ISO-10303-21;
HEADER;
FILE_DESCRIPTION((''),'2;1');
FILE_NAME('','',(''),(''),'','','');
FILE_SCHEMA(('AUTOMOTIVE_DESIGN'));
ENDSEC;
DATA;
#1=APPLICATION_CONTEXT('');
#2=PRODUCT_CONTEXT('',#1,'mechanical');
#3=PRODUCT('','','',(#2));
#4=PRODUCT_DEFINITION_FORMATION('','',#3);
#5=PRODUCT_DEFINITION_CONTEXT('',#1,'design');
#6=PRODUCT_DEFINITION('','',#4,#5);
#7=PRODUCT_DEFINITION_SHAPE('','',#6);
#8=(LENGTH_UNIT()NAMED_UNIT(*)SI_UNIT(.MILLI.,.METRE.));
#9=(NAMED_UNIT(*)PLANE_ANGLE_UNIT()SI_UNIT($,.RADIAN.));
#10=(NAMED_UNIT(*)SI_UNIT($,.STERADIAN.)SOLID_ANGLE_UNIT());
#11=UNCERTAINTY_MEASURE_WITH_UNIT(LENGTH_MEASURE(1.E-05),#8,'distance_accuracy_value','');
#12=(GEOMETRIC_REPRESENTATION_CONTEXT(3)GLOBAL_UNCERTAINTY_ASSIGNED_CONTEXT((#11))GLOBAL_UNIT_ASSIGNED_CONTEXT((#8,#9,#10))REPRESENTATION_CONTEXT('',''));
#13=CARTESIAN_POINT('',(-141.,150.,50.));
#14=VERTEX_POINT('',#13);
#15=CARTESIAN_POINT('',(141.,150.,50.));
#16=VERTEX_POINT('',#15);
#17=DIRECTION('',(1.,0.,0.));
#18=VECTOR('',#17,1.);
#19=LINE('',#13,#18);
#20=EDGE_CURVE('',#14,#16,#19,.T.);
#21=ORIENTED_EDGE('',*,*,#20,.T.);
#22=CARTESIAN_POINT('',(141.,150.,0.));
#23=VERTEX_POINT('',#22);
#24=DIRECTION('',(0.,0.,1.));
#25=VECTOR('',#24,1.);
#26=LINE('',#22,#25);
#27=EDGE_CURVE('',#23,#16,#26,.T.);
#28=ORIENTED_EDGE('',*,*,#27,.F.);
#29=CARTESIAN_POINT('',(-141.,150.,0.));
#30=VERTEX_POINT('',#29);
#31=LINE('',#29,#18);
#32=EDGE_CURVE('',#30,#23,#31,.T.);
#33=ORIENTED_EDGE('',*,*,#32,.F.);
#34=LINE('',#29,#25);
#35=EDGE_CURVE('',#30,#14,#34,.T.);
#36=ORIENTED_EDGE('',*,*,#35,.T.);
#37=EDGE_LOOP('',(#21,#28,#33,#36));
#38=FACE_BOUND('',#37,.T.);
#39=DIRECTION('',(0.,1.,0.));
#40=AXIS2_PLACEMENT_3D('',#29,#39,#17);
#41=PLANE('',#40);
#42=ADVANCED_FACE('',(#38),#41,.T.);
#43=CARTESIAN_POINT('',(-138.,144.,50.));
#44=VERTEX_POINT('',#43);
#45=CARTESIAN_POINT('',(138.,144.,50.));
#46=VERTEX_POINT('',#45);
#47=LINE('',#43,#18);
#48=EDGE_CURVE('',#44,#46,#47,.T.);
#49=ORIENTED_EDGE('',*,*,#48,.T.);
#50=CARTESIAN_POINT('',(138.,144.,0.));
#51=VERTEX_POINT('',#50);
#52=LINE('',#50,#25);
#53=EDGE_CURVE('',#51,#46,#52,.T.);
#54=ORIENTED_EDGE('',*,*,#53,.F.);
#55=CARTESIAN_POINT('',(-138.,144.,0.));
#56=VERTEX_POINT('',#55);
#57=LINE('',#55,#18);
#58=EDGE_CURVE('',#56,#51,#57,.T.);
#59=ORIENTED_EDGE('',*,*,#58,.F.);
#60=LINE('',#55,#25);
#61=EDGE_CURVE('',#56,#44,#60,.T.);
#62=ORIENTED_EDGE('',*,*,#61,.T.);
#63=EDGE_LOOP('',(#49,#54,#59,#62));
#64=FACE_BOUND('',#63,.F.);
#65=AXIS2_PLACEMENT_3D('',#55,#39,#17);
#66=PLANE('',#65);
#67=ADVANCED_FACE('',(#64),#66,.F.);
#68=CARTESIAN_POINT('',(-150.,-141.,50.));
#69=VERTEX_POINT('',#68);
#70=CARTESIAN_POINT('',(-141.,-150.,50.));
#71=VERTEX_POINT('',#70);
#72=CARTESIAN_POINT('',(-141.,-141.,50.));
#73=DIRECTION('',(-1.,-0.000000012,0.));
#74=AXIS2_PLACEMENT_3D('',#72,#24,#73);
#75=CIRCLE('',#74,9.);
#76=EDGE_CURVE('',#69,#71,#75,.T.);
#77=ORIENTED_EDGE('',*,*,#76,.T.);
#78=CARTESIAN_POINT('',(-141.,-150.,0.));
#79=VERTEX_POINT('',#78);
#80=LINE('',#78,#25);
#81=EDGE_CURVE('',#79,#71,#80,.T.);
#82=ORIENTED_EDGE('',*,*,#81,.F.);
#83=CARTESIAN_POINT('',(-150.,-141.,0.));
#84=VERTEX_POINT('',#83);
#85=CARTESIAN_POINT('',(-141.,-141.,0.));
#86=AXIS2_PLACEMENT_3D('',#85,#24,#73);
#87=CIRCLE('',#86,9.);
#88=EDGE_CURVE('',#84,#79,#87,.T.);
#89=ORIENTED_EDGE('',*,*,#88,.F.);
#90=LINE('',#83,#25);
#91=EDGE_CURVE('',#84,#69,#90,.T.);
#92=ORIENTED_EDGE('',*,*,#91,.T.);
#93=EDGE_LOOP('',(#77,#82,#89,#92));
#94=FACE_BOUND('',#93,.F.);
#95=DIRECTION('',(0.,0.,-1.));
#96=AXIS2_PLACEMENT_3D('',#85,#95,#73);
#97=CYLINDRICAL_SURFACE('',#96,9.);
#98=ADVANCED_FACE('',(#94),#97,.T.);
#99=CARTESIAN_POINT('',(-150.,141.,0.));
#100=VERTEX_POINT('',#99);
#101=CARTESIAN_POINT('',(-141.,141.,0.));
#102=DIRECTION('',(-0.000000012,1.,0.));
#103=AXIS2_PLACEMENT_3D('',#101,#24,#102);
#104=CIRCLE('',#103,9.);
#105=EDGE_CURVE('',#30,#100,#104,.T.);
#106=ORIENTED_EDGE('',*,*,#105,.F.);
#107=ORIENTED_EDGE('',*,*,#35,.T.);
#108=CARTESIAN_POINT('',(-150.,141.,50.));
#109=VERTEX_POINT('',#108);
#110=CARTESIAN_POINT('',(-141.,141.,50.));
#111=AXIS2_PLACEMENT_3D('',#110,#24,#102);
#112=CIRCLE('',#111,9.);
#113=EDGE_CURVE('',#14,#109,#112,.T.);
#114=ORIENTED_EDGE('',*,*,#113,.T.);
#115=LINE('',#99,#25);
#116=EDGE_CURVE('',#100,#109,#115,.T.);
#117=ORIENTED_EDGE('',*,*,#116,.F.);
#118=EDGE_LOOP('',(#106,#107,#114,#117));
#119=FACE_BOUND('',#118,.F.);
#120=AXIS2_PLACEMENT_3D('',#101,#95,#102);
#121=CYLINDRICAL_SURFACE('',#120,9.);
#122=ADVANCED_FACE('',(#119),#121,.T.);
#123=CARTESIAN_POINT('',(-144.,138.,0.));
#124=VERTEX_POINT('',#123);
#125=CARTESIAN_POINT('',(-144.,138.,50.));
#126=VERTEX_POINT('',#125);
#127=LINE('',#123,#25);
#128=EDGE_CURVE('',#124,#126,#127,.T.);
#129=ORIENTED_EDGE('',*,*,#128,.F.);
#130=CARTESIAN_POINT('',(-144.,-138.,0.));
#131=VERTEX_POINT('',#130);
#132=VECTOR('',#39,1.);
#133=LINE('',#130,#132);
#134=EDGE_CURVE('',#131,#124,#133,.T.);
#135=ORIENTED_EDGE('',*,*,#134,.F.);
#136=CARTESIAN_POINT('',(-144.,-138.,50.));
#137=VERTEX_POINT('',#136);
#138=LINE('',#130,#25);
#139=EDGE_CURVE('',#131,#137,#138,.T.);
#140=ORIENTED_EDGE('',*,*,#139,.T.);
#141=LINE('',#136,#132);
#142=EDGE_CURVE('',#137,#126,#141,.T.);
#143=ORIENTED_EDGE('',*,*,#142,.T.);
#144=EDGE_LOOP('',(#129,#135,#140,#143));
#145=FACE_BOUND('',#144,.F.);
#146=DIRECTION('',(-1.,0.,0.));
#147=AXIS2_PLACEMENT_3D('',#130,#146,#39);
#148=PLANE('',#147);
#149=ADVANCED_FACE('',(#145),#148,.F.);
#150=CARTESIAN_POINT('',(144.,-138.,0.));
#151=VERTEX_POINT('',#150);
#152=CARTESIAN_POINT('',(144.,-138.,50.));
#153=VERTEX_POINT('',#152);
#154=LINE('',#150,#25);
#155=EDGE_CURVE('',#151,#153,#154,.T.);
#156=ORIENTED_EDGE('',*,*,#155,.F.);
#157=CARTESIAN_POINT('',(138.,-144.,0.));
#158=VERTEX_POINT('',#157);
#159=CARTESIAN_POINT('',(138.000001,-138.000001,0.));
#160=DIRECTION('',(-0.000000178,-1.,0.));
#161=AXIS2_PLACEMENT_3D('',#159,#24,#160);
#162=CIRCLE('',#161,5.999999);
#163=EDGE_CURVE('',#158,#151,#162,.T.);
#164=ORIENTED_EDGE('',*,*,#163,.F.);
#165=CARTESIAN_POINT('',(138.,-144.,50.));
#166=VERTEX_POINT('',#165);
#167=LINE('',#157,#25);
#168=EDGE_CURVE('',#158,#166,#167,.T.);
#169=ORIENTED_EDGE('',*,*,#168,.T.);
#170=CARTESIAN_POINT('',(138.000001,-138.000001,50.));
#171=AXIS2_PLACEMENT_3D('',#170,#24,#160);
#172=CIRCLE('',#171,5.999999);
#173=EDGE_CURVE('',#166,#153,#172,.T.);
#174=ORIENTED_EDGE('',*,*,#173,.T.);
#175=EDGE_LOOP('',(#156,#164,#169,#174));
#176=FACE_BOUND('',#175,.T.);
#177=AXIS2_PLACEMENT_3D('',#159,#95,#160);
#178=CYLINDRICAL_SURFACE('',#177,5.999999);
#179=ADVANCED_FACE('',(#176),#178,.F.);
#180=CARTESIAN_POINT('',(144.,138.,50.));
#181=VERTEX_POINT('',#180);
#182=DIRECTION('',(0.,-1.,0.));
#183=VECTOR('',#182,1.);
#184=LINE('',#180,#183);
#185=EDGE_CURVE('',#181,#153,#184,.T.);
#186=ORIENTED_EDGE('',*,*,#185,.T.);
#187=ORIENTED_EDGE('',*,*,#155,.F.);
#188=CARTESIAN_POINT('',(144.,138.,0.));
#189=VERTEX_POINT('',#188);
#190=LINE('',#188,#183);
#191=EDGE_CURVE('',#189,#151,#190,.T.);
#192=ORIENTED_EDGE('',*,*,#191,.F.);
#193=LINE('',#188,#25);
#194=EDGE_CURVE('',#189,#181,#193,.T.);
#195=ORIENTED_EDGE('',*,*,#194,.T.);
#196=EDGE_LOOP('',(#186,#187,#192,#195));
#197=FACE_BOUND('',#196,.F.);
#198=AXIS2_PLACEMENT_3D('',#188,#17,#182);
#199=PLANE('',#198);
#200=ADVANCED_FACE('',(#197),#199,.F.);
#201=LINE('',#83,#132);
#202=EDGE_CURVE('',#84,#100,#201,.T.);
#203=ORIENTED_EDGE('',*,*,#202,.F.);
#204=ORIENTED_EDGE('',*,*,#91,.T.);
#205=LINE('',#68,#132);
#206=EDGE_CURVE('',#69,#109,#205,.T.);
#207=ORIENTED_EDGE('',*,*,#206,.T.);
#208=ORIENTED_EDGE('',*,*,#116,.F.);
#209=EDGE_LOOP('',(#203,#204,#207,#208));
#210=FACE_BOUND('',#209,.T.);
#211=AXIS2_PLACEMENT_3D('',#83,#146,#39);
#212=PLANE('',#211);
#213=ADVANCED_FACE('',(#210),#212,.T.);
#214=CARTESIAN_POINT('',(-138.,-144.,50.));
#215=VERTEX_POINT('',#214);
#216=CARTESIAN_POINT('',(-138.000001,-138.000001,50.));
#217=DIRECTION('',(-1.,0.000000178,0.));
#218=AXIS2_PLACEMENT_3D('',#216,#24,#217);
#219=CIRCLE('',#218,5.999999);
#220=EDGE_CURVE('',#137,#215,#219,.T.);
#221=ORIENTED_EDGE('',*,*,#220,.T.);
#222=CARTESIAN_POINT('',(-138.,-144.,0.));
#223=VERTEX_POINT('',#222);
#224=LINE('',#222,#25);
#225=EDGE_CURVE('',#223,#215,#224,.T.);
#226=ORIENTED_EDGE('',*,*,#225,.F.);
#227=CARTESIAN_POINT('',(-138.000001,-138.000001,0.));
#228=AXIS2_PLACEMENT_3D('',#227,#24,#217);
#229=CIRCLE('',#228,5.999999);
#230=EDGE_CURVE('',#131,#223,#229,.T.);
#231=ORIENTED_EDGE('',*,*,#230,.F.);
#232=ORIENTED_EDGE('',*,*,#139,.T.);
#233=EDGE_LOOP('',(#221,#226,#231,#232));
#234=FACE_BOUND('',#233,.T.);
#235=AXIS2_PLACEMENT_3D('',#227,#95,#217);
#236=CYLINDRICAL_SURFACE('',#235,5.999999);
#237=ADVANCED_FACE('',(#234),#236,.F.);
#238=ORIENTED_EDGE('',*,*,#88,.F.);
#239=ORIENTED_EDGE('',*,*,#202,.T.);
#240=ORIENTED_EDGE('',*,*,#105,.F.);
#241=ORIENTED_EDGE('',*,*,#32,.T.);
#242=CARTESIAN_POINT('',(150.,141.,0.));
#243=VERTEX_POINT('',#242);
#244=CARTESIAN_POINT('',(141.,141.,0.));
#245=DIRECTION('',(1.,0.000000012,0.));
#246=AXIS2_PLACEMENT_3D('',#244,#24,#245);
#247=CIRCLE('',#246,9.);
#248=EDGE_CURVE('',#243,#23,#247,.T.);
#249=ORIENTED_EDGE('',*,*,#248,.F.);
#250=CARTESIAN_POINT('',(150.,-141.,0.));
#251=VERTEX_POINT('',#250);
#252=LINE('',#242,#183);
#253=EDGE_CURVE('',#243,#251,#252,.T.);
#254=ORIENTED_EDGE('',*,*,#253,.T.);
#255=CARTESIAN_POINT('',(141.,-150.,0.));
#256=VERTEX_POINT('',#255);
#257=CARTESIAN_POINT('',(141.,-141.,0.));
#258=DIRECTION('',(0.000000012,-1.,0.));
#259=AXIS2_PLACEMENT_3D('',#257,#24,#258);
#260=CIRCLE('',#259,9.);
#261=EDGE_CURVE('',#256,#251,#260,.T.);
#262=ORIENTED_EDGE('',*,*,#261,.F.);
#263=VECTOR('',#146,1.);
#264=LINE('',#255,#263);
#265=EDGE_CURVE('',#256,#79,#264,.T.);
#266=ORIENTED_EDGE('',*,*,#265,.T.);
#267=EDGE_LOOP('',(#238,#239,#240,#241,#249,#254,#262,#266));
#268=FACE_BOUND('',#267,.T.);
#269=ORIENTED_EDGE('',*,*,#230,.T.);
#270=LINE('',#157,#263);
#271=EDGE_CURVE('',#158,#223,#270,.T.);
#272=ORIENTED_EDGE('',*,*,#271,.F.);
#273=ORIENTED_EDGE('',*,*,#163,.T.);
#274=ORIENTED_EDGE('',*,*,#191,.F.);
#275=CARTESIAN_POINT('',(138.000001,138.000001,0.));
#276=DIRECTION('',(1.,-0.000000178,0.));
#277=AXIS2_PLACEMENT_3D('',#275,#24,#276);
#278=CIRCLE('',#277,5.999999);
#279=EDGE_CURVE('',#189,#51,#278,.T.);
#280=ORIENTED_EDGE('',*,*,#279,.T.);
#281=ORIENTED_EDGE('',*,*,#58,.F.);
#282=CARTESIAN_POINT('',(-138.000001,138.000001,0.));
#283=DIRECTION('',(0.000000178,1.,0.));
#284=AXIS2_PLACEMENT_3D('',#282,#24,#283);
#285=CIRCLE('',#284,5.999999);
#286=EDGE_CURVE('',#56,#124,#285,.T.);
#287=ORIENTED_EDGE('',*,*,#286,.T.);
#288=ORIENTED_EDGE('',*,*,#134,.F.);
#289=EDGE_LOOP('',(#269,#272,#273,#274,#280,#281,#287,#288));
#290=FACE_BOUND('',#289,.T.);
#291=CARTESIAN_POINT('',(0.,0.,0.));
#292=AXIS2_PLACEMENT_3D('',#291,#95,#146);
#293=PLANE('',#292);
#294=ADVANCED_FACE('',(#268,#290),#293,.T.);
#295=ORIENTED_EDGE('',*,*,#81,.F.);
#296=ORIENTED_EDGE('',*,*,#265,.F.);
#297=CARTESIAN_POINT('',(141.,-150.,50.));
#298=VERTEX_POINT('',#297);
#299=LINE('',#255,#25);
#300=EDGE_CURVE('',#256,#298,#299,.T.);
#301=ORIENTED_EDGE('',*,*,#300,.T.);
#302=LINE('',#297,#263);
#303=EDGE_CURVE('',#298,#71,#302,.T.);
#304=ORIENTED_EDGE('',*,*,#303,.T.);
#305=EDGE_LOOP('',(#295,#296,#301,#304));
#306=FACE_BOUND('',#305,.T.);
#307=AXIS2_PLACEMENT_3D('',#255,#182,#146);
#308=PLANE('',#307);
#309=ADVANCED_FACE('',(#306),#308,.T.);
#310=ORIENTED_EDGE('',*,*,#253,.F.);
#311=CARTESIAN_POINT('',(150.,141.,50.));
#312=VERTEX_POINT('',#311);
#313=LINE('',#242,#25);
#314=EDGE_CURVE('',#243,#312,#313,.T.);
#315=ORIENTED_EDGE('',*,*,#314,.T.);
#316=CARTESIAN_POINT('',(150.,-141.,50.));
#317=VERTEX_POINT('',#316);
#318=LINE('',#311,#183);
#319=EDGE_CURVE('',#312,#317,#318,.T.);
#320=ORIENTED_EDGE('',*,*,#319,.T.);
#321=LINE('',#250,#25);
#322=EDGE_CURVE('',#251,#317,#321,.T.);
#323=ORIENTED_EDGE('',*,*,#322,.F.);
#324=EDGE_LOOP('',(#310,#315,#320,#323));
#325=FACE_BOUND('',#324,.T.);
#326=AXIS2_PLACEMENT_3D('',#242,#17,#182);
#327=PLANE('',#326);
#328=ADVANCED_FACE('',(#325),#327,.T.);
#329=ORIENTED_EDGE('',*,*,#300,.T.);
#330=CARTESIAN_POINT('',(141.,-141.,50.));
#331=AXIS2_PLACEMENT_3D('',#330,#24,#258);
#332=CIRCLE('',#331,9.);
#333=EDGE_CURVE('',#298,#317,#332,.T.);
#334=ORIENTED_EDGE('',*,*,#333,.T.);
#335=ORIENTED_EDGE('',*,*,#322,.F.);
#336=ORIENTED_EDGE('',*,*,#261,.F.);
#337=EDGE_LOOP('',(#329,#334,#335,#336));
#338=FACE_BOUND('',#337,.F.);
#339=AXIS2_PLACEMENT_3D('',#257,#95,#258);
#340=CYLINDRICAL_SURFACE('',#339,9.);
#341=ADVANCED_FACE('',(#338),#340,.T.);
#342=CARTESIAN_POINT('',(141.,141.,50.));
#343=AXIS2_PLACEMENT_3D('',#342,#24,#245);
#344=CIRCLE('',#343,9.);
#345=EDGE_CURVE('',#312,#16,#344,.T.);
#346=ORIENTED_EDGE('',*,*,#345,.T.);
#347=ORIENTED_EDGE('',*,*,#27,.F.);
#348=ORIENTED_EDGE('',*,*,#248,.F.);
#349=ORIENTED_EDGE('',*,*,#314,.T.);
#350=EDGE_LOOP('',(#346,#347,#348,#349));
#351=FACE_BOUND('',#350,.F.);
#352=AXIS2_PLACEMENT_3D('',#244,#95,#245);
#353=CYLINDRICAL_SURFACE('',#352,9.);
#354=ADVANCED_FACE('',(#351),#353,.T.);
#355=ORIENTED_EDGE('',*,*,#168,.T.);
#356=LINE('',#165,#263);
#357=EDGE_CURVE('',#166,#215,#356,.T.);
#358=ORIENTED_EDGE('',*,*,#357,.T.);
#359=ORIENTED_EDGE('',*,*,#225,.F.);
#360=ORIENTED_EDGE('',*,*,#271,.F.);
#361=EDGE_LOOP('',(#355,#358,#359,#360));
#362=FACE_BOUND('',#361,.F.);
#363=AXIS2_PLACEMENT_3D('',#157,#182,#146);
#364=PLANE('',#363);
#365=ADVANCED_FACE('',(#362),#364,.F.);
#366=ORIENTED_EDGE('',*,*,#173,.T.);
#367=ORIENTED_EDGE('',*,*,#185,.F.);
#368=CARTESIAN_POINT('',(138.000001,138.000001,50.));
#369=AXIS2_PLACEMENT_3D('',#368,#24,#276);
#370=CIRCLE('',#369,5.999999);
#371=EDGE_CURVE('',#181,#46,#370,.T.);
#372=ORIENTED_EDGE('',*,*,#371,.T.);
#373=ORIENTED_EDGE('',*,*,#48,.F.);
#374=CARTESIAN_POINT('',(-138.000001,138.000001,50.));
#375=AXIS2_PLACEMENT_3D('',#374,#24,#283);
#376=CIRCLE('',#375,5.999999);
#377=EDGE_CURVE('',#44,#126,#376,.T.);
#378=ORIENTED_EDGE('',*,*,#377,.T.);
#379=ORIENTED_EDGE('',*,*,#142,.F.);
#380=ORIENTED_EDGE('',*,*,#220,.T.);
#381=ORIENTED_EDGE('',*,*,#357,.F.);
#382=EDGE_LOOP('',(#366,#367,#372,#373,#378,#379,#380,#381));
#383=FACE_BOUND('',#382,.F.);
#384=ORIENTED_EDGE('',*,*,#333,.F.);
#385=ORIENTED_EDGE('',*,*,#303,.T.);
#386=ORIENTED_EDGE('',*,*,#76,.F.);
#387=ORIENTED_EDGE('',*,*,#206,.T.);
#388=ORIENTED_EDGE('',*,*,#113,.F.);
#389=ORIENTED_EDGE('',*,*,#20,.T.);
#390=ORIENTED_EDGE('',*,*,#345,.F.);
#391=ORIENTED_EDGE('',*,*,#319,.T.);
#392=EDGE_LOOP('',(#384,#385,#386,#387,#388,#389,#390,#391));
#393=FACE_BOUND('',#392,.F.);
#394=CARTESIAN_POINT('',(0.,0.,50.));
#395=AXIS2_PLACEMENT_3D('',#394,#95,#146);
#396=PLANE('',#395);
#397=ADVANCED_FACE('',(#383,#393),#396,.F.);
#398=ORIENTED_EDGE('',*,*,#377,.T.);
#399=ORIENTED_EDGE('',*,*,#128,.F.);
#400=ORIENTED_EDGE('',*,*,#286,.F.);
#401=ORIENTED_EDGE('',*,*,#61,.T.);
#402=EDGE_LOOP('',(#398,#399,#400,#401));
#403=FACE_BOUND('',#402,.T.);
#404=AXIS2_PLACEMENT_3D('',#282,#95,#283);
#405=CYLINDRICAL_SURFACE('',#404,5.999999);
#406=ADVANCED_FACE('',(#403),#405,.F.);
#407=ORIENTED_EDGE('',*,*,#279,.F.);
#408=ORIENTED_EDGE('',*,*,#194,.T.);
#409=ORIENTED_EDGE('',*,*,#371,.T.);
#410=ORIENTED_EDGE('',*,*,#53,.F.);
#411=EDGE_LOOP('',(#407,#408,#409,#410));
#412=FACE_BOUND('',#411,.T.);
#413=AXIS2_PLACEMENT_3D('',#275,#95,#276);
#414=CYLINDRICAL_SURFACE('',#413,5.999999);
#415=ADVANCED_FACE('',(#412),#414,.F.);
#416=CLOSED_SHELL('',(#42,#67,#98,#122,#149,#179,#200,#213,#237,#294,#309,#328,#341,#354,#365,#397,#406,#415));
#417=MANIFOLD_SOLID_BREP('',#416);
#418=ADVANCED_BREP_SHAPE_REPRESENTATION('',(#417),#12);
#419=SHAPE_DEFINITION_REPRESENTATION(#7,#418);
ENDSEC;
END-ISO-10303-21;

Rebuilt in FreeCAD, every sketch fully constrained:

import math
import FreeCAD as App
import Part
import Sketcher

V = App.Vector

doc = App.newDocument("Part")
body = doc.addObject("PartDesign::Body", "Body")

sketch1 = doc.addObject("Sketcher::SketchObject", "Sketch")
body.addObject(sketch1)
sketch1.AttachmentSupport = (doc.XY_Plane, [""])
sketch1.MapMode = "FlatFace"
sketch1.addGeometry(Part.LineSegment(V(141, 150, 0), V(-141, 150, 0)), False)
sketch1.addGeometry(Part.ArcOfCircle(Part.Circle(V(-141, 141, 0), V(0, 0, 1), 9), math.radians(90), math.radians(180)), False)
sketch1.addGeometry(Part.LineSegment(V(-150, 141, 0), V(-150, -141, 0)), False)
sketch1.addGeometry(Part.ArcOfCircle(Part.Circle(V(-141, -141, 0), V(0, 0, 1), 9), math.radians(-180), math.radians(-90)), False)
sketch1.addGeometry(Part.LineSegment(V(-141, -150, 0), V(141, -150, 0)), False)
sketch1.addGeometry(Part.ArcOfCircle(Part.Circle(V(141, -141, 0), V(0, 0, 1), 9), math.radians(-90), math.radians(0)), False)
sketch1.addGeometry(Part.LineSegment(V(150, -141, 0), V(150, 141, 0)), False)
sketch1.addGeometry(Part.ArcOfCircle(Part.Circle(V(141, 141, 0), V(0, 0, 1), 9), math.radians(0), math.radians(90)), False)
sketch1.addGeometry(Part.LineSegment(V(-138, 144, 0), V(138, 144, 0)), False)
sketch1.addGeometry(Part.ArcOfCircle(Part.Circle(V(138, 138, 0), V(0, 0, 1), 6), math.radians(0), math.radians(90)), False)
sketch1.addGeometry(Part.LineSegment(V(144, 138, 0), V(144, -138, 0)), False)
sketch1.addGeometry(Part.ArcOfCircle(Part.Circle(V(138, -138, 0), V(0, 0, 1), 6), math.radians(-90), math.radians(0)), False)
sketch1.addGeometry(Part.LineSegment(V(138, -144, 0), V(-138, -144, 0)), False)
sketch1.addGeometry(Part.ArcOfCircle(Part.Circle(V(-138, -138, 0), V(0, 0, 1), 6), math.radians(180), math.radians(270)), False)
sketch1.addGeometry(Part.LineSegment(V(-144, -138, 0), V(-144, 138, 0)), False)
sketch1.addGeometry(Part.ArcOfCircle(Part.Circle(V(-138, 138, 0), V(0, 0, 1), 6), math.radians(90), math.radians(180)), False)
sketch1.addConstraint(Sketcher.Constraint("Tangent", 0, 2, 1, 1))
sketch1.addConstraint(Sketcher.Constraint("Tangent", 1, 2, 2, 1))
sketch1.addConstraint(Sketcher.Constraint("Tangent", 2, 2, 3, 1))
sketch1.addConstraint(Sketcher.Constraint("Tangent", 3, 2, 4, 1))
sketch1.addConstraint(Sketcher.Constraint("Tangent", 4, 2, 5, 1))
sketch1.addConstraint(Sketcher.Constraint("Tangent", 5, 2, 6, 1))
sketch1.addConstraint(Sketcher.Constraint("Tangent", 6, 2, 7, 1))
sketch1.addConstraint(Sketcher.Constraint("Tangent", 7, 2, 0, 1))
sketch1.addConstraint(Sketcher.Constraint("Tangent", 8, 2, 9, 2))
sketch1.addConstraint(Sketcher.Constraint("Tangent", 9, 1, 10, 1))
sketch1.addConstraint(Sketcher.Constraint("Tangent", 10, 2, 11, 2))
sketch1.addConstraint(Sketcher.Constraint("Tangent", 11, 1, 12, 1))
sketch1.addConstraint(Sketcher.Constraint("Tangent", 12, 2, 13, 2))
sketch1.addConstraint(Sketcher.Constraint("Tangent", 13, 1, 14, 1))
sketch1.addConstraint(Sketcher.Constraint("Tangent", 14, 2, 15, 2))
sketch1.addConstraint(Sketcher.Constraint("Tangent", 15, 1, 8, 1))
sketch1.addConstraint(Sketcher.Constraint("Horizontal", 0))
sketch1.addConstraint(Sketcher.Constraint("Vertical", 2))
sketch1.addConstraint(Sketcher.Constraint("Horizontal", 4))
sketch1.addConstraint(Sketcher.Constraint("Vertical", 6))
sketch1.addConstraint(Sketcher.Constraint("Horizontal", 8))
sketch1.addConstraint(Sketcher.Constraint("Vertical", 10))
sketch1.addConstraint(Sketcher.Constraint("Horizontal", 12))
sketch1.addConstraint(Sketcher.Constraint("Vertical", 14))
sketch1.addConstraint(Sketcher.Constraint("Equal", 1, 3))
sketch1.addConstraint(Sketcher.Constraint("Equal", 3, 5))
sketch1.addConstraint(Sketcher.Constraint("Equal", 5, 7))
sketch1.addConstraint(Sketcher.Constraint("Equal", 9, 11))
sketch1.addConstraint(Sketcher.Constraint("Equal", 11, 13))
sketch1.addConstraint(Sketcher.Constraint("Equal", 13, 15))
sketch1.addConstraint(Sketcher.Constraint("Symmetric", 1, 3, 5, 3, -1, 1))
sketch1.addConstraint(Sketcher.Constraint("Symmetric", 9, 3, 13, 3, -1, 1))
sketch1.addConstraint(Sketcher.Constraint("Equal", 4, 2))
sketch1.addConstraint(Sketcher.Constraint("Equal", 12, 10))
sketch1.addConstraint(Sketcher.Constraint("Radius", 1, 9.0))
sketch1.addConstraint(Sketcher.Constraint("Radius", 9, 5.999999))
sketch1.addConstraint(Sketcher.Constraint("DistanceX", 0, 2, 0, 1, 282.0))
sketch1.addConstraint(Sketcher.Constraint("DistanceX", 8, 1, 8, 2, 276.0))
pad1 = doc.addObject("PartDesign::Pad", "Pad")
body.addObject(pad1)
pad1.Profile = sketch1
pad1.Length = 50

doc.recompute()
